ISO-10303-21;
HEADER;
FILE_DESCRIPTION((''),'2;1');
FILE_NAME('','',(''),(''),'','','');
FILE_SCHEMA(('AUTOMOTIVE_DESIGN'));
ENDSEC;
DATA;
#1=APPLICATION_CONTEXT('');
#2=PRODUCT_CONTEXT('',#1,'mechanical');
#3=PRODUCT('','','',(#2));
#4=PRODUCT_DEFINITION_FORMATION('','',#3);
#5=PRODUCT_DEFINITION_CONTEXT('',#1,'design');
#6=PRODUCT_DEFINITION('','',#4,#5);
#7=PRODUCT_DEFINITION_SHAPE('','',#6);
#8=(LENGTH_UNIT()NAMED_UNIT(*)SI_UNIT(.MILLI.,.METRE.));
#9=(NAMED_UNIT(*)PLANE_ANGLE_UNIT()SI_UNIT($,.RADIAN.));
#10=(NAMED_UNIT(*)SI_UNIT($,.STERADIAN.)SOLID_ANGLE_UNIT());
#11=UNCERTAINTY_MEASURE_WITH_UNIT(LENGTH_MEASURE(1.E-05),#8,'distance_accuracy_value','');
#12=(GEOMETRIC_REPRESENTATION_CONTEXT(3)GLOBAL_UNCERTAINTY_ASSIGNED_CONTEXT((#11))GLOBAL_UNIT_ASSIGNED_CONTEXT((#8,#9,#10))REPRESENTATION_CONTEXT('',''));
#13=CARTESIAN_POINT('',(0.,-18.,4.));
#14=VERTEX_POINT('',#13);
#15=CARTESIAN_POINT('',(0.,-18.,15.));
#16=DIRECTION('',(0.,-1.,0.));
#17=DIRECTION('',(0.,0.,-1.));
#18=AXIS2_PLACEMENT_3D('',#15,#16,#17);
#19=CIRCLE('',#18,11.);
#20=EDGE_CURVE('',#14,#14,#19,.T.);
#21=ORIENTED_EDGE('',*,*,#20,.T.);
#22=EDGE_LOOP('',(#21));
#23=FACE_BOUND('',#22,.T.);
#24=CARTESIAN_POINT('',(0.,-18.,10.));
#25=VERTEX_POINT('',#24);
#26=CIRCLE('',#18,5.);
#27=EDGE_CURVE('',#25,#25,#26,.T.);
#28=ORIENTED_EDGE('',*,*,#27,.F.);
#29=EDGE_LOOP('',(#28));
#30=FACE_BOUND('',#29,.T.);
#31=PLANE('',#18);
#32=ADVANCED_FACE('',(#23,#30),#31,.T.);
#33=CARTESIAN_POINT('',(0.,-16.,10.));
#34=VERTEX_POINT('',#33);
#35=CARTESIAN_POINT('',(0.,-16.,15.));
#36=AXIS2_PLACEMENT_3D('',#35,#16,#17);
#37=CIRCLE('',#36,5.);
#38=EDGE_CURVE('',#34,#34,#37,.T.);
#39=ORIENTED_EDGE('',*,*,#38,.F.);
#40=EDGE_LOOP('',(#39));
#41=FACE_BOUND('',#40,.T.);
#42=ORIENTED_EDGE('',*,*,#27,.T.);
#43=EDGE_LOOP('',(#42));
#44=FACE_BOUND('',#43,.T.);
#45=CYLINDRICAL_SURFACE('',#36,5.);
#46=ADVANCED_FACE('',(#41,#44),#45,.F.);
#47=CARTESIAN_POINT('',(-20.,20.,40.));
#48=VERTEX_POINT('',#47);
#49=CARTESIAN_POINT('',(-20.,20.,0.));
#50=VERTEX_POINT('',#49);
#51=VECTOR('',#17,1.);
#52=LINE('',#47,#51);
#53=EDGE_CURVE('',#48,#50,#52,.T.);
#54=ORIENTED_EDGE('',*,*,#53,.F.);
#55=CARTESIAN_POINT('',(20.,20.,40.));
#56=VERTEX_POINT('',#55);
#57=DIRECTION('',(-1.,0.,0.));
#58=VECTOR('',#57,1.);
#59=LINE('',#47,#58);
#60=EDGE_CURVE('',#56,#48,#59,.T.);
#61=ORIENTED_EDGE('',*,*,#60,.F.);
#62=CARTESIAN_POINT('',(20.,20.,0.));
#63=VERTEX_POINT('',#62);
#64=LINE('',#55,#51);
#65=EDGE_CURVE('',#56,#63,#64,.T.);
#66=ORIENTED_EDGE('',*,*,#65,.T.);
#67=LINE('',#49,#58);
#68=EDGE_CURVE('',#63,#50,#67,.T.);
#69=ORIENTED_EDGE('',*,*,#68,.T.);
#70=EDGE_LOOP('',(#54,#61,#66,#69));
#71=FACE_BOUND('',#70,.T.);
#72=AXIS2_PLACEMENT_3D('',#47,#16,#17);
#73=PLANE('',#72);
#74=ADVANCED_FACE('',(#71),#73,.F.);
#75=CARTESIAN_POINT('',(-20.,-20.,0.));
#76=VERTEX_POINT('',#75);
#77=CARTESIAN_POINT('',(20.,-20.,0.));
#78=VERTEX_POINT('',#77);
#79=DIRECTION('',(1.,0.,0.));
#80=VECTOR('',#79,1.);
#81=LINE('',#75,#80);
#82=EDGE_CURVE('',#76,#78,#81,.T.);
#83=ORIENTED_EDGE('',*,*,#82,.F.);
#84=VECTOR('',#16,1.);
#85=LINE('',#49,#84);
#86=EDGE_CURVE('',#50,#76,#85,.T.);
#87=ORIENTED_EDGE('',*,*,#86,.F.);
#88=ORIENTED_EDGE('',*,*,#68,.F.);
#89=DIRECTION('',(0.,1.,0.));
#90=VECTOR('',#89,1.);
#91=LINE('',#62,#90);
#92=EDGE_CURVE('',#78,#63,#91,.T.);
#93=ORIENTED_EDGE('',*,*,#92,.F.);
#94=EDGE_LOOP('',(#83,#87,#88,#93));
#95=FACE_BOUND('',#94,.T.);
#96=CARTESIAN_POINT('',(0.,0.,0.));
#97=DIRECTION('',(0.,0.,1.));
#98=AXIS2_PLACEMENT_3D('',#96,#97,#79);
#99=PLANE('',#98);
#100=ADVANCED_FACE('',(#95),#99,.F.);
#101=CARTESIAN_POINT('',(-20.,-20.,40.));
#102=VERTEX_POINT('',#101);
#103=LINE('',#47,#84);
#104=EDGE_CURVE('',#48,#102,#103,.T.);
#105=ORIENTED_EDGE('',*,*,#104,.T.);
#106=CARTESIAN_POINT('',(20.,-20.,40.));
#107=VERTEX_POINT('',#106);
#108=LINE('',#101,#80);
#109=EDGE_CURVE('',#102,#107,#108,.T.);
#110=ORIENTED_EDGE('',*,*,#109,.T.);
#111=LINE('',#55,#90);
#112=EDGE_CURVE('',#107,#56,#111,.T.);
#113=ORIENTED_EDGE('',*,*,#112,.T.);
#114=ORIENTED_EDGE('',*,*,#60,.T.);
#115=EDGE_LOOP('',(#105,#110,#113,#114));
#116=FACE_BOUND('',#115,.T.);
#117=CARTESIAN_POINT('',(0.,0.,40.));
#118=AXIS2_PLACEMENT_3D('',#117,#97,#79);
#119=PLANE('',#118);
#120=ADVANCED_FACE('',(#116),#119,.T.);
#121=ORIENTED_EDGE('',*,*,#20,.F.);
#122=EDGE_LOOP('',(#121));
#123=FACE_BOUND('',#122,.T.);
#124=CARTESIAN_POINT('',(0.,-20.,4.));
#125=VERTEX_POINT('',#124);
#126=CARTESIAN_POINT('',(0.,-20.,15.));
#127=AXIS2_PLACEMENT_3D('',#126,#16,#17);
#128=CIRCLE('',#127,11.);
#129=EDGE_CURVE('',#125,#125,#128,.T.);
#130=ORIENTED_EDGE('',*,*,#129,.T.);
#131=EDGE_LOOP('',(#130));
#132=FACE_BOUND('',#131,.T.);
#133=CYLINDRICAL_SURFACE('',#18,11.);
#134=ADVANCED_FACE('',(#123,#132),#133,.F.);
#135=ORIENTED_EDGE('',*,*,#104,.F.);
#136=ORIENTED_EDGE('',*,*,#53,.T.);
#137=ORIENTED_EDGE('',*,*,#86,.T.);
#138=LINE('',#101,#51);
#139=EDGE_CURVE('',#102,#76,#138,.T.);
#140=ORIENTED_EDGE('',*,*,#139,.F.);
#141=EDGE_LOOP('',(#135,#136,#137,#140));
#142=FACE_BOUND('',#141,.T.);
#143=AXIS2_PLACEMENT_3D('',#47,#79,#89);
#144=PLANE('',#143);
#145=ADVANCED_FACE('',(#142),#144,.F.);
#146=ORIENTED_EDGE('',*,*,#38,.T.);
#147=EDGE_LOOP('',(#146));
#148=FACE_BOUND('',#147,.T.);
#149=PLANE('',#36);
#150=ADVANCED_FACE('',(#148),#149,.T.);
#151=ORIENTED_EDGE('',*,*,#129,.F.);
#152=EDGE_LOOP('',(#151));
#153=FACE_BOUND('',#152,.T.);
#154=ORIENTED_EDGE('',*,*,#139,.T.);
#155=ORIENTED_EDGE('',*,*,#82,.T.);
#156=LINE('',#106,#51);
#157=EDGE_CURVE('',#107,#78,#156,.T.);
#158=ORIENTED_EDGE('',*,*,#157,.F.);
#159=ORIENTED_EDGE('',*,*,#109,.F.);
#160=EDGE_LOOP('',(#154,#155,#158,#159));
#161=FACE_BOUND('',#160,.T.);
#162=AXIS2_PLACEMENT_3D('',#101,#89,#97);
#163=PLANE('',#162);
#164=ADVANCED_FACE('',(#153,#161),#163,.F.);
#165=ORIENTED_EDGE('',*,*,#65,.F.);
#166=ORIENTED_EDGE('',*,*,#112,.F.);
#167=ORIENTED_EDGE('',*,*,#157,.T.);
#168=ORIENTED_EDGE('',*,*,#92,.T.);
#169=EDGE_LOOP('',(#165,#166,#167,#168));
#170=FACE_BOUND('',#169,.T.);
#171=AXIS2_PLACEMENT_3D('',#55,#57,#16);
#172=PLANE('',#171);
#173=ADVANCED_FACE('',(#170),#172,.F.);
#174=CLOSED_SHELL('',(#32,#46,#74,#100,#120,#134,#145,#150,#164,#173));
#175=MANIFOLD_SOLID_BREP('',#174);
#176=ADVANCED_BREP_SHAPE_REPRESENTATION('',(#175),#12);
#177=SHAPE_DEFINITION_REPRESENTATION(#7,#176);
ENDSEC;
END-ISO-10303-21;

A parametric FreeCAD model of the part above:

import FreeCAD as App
import Part
import Sketcher

V = App.Vector

doc = App.newDocument("Part")
body = doc.addObject("PartDesign::Body", "Body")

# Sketch on XY plane
sketch1 = body.newObject("Sketcher::SketchObject", "Sketch")
sketch1.AttachmentSupport = (doc.getObject("XY_Plane"), [""])
sketch1.MapMode = "FlatFace"
sketch1.addGeometry(Part.LineSegment(V(-20, 20, 0), V(-20, -20, 0)), False)
sketch1.addGeometry(Part.LineSegment(V(-20, -20, 0), V(20, -20, 0)), False)
sketch1.addGeometry(Part.LineSegment(V(20, -20, 0), V(20, 20, 0)), False)
sketch1.addGeometry(Part.LineSegment(V(20, 20, 0), V(-20, 20, 0)), False)
sketch1.addConstraint(Sketcher.Constraint("Coincident", 0, 2, 1, 1))
sketch1.addConstraint(Sketcher.Constraint("Coincident", 1, 2, 2, 1))
sketch1.addConstraint(Sketcher.Constraint("Coincident", 2, 2, 3, 1))
sketch1.addConstraint(Sketcher.Constraint("Coincident", 3, 2, 0, 1))
sketch1.addConstraint(Sketcher.Constraint("Vertical", 0))
sketch1.addConstraint(Sketcher.Constraint("Horizontal", 1))
sketch1.addConstraint(Sketcher.Constraint("Vertical", 2))
sketch1.addConstraint(Sketcher.Constraint("Horizontal", 3))
sketch1.addConstraint(Sketcher.Constraint("Symmetric", 0, 2, 2, 2, -1, 1))
sketch1.addConstraint(Sketcher.Constraint("Equal", 3, 0))
sketch1.addConstraint(Sketcher.Constraint("DistanceX", 1, 1, 1, 2, 40.0))
pad1 = body.newObject("PartDesign::Pad", "Pad")
pad1.Profile = sketch1
pad1.Length = 40

# Sketch on XZ plane
sketch2 = body.newObject("Sketcher::SketchObject", "Sketch001")
sketch2.AttachmentSupport = (doc.getObject("XZ_Plane"), [""])
sketch2.MapMode = "FlatFace"
sketch2.AttachmentOffset = App.Placement(V(0, 0, 20), App.Rotation())
sketch2.addGeometry(Part.Circle(V(0, 15, 0), V(0, 0, 1), 11), False)
sketch2.addConstraint(Sketcher.Constraint("PointOnObject", 0, 3, -2))
sketch2.addConstraint(Sketcher.Constraint("Diameter", 0, 22.0))
sketch2.addConstraint(Sketcher.Constraint("DistanceY", -1, 1, 0, 3, 15.0))
pocket1 = body.newObject("PartDesign::Pocket", "Pocket")
pocket1.Profile = sketch2
pocket1.Length = 2

# Sketch on XZ plane
sketch3 = body.newObject("Sketcher::SketchObject", "Sketch002")
sketch3.AttachmentSupport = (doc.getObject("XZ_Plane"), [""])
sketch3.MapMode = "FlatFace"
sketch3.AttachmentOffset = App.Placement(V(0, 0, 18), App.Rotation())
sketch3.addGeometry(Part.Circle(V(0, 15, 0), V(0, 0, 1), 5), False)
sketch3.addConstraint(Sketcher.Constraint("PointOnObject", 0, 3, -2))
sketch3.addConstraint(Sketcher.Constraint("Diameter", 0, 10.0))
sketch3.addConstraint(Sketcher.Constraint("DistanceY", -1, 1, 0, 3, 15.0))
pocket2 = body.newObject("PartDesign::Pocket", "Pocket001")
pocket2.Profile = sketch3
pocket2.Length = 2

doc.recompute()
